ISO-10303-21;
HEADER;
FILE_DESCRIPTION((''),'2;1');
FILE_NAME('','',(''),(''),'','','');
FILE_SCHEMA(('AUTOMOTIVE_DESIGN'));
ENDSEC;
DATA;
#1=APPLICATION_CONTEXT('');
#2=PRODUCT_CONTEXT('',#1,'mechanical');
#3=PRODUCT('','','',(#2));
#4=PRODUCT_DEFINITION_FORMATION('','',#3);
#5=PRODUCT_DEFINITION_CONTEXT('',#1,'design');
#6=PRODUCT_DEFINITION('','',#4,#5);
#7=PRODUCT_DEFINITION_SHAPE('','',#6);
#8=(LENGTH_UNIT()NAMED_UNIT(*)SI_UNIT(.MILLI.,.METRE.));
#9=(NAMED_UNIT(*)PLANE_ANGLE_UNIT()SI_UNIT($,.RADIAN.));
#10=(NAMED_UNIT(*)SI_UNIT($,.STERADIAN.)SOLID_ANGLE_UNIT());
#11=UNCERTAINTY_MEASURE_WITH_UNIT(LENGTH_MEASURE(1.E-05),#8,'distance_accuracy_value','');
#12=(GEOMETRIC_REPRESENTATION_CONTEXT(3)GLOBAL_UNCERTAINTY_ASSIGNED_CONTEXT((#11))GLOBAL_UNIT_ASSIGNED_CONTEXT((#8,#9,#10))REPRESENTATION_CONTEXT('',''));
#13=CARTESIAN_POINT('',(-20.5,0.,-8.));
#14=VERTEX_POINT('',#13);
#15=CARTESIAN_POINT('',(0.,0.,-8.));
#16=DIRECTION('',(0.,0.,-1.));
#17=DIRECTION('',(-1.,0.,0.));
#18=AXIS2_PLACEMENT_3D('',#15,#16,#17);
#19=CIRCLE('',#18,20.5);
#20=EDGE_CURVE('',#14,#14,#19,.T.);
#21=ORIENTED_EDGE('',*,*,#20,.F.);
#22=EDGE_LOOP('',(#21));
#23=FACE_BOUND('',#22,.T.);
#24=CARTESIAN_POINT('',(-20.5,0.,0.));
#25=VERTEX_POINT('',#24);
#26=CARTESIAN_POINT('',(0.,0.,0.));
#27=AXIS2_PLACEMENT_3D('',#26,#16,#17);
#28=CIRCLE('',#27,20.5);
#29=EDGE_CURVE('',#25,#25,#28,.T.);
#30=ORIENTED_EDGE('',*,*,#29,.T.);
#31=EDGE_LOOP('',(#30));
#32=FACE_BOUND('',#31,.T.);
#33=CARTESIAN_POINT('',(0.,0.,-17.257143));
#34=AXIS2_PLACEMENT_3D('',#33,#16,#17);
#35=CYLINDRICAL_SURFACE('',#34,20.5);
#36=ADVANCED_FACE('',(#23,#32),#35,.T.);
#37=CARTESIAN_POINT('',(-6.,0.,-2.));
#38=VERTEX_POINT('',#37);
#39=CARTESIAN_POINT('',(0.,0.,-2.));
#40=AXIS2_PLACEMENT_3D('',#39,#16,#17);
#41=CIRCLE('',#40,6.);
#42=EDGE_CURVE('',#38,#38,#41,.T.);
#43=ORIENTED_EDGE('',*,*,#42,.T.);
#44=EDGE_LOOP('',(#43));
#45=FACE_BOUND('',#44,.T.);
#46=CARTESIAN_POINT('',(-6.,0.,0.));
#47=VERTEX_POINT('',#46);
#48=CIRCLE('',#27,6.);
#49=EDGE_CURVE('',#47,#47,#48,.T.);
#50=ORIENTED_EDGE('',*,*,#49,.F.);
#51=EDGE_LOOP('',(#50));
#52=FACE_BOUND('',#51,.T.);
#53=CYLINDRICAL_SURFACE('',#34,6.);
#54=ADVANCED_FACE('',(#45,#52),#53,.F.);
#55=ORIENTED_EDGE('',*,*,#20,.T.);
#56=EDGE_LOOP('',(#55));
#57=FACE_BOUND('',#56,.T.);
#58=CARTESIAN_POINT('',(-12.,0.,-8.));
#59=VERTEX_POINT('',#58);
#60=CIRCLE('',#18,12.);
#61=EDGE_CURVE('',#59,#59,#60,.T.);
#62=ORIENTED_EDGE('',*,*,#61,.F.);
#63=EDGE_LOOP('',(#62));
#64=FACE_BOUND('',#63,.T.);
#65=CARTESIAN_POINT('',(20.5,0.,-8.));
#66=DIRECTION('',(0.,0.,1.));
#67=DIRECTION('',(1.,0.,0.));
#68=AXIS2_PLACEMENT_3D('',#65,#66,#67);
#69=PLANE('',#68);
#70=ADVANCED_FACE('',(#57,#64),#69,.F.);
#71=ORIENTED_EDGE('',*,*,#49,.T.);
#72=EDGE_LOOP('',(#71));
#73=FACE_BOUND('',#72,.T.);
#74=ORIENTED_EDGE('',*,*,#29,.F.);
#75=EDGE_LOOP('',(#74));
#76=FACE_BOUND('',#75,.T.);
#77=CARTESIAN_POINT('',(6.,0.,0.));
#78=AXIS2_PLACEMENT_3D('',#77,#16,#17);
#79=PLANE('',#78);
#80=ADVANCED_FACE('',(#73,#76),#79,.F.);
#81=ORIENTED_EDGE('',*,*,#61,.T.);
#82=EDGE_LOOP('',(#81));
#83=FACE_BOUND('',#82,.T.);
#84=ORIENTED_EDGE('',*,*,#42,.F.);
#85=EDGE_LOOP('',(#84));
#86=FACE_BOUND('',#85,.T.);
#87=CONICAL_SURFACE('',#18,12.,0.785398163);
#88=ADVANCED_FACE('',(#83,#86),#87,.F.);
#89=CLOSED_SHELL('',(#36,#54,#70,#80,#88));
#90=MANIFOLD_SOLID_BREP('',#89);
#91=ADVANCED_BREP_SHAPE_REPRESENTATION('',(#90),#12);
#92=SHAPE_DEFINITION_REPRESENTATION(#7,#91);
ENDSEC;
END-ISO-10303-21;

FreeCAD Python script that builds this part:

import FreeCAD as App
import Part
import Sketcher

V = App.Vector
Q = App.Units.Quantity

doc = App.newDocument("Part")
params = doc.addObject("Spreadsheet::Sheet", "Params")
for row, (alias, value) in enumerate([
    ("sketch1_height", "8 mm"),
    ("sketch1_height2", "2 mm"),
    ("sketch1_width", "14.5 mm"),
    ("revolution_angle", "360 deg"),
], start=1):
    params.set(f"A{row}", alias)
    params.set(f"B{row}", "=" + value)
    params.setAlias(f"B{row}", alias)

body = doc.addObject("PartDesign::Body", "Body")

# Sketch on XZ plane
sketch1 = doc.addObject("Sketcher::SketchObject", "Sketch")
body.addObject(sketch1)
sketch1.AttachmentSupport = (doc.XZ_Plane, [""])
sketch1.MapMode = "FlatFace"
sketch1.addGeometry([
    Part.LineSegment(V(6, 0, 0), V(20.5, 0, 0)),  # 0
    Part.LineSegment(V(20.5, 0, 0), V(20.5, -8, 0)),  # 1
    Part.LineSegment(V(20.5, -8, 0), V(12, -8, 0)),  # 2
    Part.LineSegment(V(12, -8, 0), V(6, -2, 0)),  # 3
    Part.LineSegment(V(6, -2, 0), V(6, 0, 0)),  # 4
], False)
sketch1.addConstraint([
    Sketcher.Constraint("Coincident", 0, 2, 1, 1),
    Sketcher.Constraint("Coincident", 1, 2, 2, 1),
    Sketcher.Constraint("Coincident", 2, 2, 3, 1),
    Sketcher.Constraint("Coincident", 3, 2, 4, 1),
    Sketcher.Constraint("Coincident", 4, 2, 0, 1),
    Sketcher.Constraint("Horizontal", 0),
    Sketcher.Constraint("Vertical", 1),
    Sketcher.Constraint("Horizontal", 2),
    Sketcher.Constraint("Vertical", 4),
    Sketcher.Constraint("PointOnObject", 0, 2, -1),
    Sketcher.Constraint("DistanceY", 1, 2, 1, 1, Q("8 mm")),
    Sketcher.Constraint("DistanceY", 4, 1, 4, 2, Q("2 mm")),
    Sketcher.Constraint("Angle", 3, Q("135 deg")),
    Sketcher.Constraint("DistanceX", 0, 1, 0, 2, Q("14.5 mm")),
    Sketcher.Constraint("DistanceX", -1, 1, 2, 2, Q("12 mm")),
])
sketch1.setExpression("Constraints[10]", "Params.sketch1_height")
sketch1.setExpression("Constraints[11]", "Params.sketch1_height2")
sketch1.setExpression("Constraints[13]", "Params.sketch1_width")
revolution = doc.addObject("PartDesign::Revolution", "Revolution")
body.addObject(revolution)
revolution.Profile = sketch1
revolution.ReferenceAxis = (sketch1, ["V_Axis"])
revolution.setExpression("Angle", "Params.revolution_angle")

doc.recompute()
